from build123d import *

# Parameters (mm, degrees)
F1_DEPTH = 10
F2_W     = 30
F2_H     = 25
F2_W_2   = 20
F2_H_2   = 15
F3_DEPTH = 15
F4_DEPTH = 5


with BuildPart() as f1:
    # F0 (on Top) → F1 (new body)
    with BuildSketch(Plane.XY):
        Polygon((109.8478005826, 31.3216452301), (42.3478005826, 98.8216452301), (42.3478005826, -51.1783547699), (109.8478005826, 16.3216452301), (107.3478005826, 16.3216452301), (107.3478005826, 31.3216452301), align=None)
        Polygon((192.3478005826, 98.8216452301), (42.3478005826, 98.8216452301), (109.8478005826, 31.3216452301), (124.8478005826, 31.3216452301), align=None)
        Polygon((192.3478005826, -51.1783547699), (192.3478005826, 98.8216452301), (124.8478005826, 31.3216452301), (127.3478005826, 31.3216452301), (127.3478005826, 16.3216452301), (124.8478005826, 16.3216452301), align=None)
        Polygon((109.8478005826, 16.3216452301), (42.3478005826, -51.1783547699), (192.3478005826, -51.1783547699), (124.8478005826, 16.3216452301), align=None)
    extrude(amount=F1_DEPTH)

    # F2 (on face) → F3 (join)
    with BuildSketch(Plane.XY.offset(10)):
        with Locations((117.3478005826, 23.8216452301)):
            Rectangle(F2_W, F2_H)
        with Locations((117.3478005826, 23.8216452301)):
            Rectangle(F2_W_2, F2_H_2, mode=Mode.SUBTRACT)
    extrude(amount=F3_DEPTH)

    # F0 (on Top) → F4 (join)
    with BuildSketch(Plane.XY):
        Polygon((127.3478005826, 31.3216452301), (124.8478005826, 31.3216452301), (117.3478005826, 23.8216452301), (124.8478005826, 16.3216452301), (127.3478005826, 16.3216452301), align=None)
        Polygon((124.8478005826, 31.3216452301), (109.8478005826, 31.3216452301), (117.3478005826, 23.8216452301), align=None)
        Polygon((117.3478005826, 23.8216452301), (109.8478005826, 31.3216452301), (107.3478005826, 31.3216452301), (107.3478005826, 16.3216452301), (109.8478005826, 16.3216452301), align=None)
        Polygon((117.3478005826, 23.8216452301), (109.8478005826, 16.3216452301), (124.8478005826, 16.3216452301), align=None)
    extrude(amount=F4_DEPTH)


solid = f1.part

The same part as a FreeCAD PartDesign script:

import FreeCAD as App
import Part
import Sketcher


def add_polygon(sketch, points):
    """Adds a closed chain of lines whose ends are joined by coincident constraints."""
    first, n = sketch.GeometryCount, len(points)
    for a, b in zip(points, points[1:] + points[:1]):
        sketch.addGeometry(Part.LineSegment(App.Vector(*a, 0), App.Vector(*b, 0)), False)
    for i in range(n):
        sketch.addConstraint(Sketcher.Constraint("Coincident", first + i, 2, first + (i + 1) % n, 1))

doc = App.newDocument("Part")
body = doc.addObject("PartDesign::Body", "Body")

# Sketch on XY plane
sketch1 = body.newObject("Sketcher::SketchObject", "Sketch")
sketch1.AttachmentSupport = (doc.getObject("XY_Plane"), [""])
sketch1.MapMode = "FlatFace"
add_polygon(sketch1, [(42, 99), (42, -51), (192, -51), (192, 99)])  # lines 0-3
add_polygon(sketch1, [(107, 16), (107, 31), (127, 31), (127, 16)])  # lines 4-7
sketch1.addConstraint([
    Sketcher.Constraint("Vertical", 0),
    Sketcher.Constraint("Horizontal", 1),
    Sketcher.Constraint("Vertical", 2),
    Sketcher.Constraint("Horizontal", 3),
    Sketcher.Constraint("Vertical", 4),
    Sketcher.Constraint("Horizontal", 5),
    Sketcher.Constraint("Vertical", 6),
    Sketcher.Constraint("Horizontal", 7),
    Sketcher.Constraint("Equal", 3, 0),
    Sketcher.Constraint("DistanceX", 1, 1, 1, 2, 150.0),
    Sketcher.Constraint("DistanceX", 5, 1, 5, 2, 20.0),
    Sketcher.Constraint("DistanceY", 4, 1, 4, 2, 15.0),
    Sketcher.Constraint("DistanceX", 3, 2, 4, 2, 65.0),
    Sketcher.Constraint("DistanceY", 4, 2, 3, 2, 67.5),
    Sketcher.Constraint("DistanceX", -1, 1, 0, 2, 42.347801),
    Sketcher.Constraint("DistanceY", 0, 2, -1, 1, 51.178355),
])
pad1 = body.newObject("PartDesign::Pad", "Pad")
pad1.Profile = sketch1
pad1.Length = 10

# Sketch on XY plane
sketch2 = body.newObject("Sketcher::SketchObject", "Sketch001")
sketch2.AttachmentSupport = (doc.getObject("XY_Plane"), [""])
sketch2.MapMode = "FlatFace"
sketch2.AttachmentOffset = App.Placement(App.Vector(0, 0, 10), App.Rotation())
add_polygon(sketch2, [(102, 36), (102, 11), (132, 11), (132, 36)])  # lines 0-3
add_polygon(sketch2, [(127, 16), (107, 16), (107, 31), (127, 31)])  # lines 4-7
sketch2.addConstraint([
    Sketcher.Constraint("Vertical", 0),
    Sketcher.Constraint("Horizontal", 1),
    Sketcher.Constraint("Vertical", 2),
    Sketcher.Constraint("Horizontal", 3),
    Sketcher.Constraint("Horizontal", 4),
    Sketcher.Constraint("Vertical", 5),
    Sketcher.Constraint("Horizontal", 6),
    Sketcher.Constraint("Vertical", 7),
    Sketcher.Constraint("DistanceX", 1, 1, 1, 2, 30.0),
    Sketcher.Constraint("DistanceX", 4, 2, 4, 1, 20.0),
    Sketcher.Constraint("DistanceY", 0, 2, 0, 1, 25.0),
    Sketcher.Constraint("DistanceY", 5, 1, 5, 2, 15.0),
    Sketcher.Constraint("DistanceX", 0, 2, 4, 2, 5.0),
    Sketcher.Constraint("DistanceY", 0, 2, 4, 2, 5.0),
    Sketcher.Constraint("DistanceX", -1, 1, 0, 2, 102.347801),
    Sketcher.Constraint("DistanceY", -1, 1, 0, 2, 11.321645),
])
pad2 = body.newObject("PartDesign::Pad", "Pad001")
pad2.Profile = sketch2
pad2.Length = 15

# Sketch on XY plane
sketch3 = body.newObject("Sketcher::SketchObject", "Sketch002")
sketch3.AttachmentSupport = (doc.getObject("XY_Plane"), [""])
sketch3.MapMode = "FlatFace"
add_polygon(sketch3, [(127, 31), (107, 31), (107, 16), (127, 16)])  # lines 0-3
sketch3.addConstraint([
    Sketcher.Constraint("Horizontal", 0),
    Sketcher.Constraint("Vertical", 1),
    Sketcher.Constraint("Horizontal", 2),
    Sketcher.Constraint("Vertical", 3),
    Sketcher.Constraint("DistanceX", 0, 2, 0, 1, 20.0),
    Sketcher.Constraint("DistanceY", 1, 2, 1, 1, 15.0),
    Sketcher.Constraint("DistanceX", -1, 1, 0, 2, 107.347801),
    Sketcher.Constraint("DistanceY", -1, 1, 0, 2, 31.321645),
])
pad3 = body.newObject("PartDesign::Pad", "Pad002")
pad3.Profile = sketch3
pad3.Length = 5

doc.recompute()
